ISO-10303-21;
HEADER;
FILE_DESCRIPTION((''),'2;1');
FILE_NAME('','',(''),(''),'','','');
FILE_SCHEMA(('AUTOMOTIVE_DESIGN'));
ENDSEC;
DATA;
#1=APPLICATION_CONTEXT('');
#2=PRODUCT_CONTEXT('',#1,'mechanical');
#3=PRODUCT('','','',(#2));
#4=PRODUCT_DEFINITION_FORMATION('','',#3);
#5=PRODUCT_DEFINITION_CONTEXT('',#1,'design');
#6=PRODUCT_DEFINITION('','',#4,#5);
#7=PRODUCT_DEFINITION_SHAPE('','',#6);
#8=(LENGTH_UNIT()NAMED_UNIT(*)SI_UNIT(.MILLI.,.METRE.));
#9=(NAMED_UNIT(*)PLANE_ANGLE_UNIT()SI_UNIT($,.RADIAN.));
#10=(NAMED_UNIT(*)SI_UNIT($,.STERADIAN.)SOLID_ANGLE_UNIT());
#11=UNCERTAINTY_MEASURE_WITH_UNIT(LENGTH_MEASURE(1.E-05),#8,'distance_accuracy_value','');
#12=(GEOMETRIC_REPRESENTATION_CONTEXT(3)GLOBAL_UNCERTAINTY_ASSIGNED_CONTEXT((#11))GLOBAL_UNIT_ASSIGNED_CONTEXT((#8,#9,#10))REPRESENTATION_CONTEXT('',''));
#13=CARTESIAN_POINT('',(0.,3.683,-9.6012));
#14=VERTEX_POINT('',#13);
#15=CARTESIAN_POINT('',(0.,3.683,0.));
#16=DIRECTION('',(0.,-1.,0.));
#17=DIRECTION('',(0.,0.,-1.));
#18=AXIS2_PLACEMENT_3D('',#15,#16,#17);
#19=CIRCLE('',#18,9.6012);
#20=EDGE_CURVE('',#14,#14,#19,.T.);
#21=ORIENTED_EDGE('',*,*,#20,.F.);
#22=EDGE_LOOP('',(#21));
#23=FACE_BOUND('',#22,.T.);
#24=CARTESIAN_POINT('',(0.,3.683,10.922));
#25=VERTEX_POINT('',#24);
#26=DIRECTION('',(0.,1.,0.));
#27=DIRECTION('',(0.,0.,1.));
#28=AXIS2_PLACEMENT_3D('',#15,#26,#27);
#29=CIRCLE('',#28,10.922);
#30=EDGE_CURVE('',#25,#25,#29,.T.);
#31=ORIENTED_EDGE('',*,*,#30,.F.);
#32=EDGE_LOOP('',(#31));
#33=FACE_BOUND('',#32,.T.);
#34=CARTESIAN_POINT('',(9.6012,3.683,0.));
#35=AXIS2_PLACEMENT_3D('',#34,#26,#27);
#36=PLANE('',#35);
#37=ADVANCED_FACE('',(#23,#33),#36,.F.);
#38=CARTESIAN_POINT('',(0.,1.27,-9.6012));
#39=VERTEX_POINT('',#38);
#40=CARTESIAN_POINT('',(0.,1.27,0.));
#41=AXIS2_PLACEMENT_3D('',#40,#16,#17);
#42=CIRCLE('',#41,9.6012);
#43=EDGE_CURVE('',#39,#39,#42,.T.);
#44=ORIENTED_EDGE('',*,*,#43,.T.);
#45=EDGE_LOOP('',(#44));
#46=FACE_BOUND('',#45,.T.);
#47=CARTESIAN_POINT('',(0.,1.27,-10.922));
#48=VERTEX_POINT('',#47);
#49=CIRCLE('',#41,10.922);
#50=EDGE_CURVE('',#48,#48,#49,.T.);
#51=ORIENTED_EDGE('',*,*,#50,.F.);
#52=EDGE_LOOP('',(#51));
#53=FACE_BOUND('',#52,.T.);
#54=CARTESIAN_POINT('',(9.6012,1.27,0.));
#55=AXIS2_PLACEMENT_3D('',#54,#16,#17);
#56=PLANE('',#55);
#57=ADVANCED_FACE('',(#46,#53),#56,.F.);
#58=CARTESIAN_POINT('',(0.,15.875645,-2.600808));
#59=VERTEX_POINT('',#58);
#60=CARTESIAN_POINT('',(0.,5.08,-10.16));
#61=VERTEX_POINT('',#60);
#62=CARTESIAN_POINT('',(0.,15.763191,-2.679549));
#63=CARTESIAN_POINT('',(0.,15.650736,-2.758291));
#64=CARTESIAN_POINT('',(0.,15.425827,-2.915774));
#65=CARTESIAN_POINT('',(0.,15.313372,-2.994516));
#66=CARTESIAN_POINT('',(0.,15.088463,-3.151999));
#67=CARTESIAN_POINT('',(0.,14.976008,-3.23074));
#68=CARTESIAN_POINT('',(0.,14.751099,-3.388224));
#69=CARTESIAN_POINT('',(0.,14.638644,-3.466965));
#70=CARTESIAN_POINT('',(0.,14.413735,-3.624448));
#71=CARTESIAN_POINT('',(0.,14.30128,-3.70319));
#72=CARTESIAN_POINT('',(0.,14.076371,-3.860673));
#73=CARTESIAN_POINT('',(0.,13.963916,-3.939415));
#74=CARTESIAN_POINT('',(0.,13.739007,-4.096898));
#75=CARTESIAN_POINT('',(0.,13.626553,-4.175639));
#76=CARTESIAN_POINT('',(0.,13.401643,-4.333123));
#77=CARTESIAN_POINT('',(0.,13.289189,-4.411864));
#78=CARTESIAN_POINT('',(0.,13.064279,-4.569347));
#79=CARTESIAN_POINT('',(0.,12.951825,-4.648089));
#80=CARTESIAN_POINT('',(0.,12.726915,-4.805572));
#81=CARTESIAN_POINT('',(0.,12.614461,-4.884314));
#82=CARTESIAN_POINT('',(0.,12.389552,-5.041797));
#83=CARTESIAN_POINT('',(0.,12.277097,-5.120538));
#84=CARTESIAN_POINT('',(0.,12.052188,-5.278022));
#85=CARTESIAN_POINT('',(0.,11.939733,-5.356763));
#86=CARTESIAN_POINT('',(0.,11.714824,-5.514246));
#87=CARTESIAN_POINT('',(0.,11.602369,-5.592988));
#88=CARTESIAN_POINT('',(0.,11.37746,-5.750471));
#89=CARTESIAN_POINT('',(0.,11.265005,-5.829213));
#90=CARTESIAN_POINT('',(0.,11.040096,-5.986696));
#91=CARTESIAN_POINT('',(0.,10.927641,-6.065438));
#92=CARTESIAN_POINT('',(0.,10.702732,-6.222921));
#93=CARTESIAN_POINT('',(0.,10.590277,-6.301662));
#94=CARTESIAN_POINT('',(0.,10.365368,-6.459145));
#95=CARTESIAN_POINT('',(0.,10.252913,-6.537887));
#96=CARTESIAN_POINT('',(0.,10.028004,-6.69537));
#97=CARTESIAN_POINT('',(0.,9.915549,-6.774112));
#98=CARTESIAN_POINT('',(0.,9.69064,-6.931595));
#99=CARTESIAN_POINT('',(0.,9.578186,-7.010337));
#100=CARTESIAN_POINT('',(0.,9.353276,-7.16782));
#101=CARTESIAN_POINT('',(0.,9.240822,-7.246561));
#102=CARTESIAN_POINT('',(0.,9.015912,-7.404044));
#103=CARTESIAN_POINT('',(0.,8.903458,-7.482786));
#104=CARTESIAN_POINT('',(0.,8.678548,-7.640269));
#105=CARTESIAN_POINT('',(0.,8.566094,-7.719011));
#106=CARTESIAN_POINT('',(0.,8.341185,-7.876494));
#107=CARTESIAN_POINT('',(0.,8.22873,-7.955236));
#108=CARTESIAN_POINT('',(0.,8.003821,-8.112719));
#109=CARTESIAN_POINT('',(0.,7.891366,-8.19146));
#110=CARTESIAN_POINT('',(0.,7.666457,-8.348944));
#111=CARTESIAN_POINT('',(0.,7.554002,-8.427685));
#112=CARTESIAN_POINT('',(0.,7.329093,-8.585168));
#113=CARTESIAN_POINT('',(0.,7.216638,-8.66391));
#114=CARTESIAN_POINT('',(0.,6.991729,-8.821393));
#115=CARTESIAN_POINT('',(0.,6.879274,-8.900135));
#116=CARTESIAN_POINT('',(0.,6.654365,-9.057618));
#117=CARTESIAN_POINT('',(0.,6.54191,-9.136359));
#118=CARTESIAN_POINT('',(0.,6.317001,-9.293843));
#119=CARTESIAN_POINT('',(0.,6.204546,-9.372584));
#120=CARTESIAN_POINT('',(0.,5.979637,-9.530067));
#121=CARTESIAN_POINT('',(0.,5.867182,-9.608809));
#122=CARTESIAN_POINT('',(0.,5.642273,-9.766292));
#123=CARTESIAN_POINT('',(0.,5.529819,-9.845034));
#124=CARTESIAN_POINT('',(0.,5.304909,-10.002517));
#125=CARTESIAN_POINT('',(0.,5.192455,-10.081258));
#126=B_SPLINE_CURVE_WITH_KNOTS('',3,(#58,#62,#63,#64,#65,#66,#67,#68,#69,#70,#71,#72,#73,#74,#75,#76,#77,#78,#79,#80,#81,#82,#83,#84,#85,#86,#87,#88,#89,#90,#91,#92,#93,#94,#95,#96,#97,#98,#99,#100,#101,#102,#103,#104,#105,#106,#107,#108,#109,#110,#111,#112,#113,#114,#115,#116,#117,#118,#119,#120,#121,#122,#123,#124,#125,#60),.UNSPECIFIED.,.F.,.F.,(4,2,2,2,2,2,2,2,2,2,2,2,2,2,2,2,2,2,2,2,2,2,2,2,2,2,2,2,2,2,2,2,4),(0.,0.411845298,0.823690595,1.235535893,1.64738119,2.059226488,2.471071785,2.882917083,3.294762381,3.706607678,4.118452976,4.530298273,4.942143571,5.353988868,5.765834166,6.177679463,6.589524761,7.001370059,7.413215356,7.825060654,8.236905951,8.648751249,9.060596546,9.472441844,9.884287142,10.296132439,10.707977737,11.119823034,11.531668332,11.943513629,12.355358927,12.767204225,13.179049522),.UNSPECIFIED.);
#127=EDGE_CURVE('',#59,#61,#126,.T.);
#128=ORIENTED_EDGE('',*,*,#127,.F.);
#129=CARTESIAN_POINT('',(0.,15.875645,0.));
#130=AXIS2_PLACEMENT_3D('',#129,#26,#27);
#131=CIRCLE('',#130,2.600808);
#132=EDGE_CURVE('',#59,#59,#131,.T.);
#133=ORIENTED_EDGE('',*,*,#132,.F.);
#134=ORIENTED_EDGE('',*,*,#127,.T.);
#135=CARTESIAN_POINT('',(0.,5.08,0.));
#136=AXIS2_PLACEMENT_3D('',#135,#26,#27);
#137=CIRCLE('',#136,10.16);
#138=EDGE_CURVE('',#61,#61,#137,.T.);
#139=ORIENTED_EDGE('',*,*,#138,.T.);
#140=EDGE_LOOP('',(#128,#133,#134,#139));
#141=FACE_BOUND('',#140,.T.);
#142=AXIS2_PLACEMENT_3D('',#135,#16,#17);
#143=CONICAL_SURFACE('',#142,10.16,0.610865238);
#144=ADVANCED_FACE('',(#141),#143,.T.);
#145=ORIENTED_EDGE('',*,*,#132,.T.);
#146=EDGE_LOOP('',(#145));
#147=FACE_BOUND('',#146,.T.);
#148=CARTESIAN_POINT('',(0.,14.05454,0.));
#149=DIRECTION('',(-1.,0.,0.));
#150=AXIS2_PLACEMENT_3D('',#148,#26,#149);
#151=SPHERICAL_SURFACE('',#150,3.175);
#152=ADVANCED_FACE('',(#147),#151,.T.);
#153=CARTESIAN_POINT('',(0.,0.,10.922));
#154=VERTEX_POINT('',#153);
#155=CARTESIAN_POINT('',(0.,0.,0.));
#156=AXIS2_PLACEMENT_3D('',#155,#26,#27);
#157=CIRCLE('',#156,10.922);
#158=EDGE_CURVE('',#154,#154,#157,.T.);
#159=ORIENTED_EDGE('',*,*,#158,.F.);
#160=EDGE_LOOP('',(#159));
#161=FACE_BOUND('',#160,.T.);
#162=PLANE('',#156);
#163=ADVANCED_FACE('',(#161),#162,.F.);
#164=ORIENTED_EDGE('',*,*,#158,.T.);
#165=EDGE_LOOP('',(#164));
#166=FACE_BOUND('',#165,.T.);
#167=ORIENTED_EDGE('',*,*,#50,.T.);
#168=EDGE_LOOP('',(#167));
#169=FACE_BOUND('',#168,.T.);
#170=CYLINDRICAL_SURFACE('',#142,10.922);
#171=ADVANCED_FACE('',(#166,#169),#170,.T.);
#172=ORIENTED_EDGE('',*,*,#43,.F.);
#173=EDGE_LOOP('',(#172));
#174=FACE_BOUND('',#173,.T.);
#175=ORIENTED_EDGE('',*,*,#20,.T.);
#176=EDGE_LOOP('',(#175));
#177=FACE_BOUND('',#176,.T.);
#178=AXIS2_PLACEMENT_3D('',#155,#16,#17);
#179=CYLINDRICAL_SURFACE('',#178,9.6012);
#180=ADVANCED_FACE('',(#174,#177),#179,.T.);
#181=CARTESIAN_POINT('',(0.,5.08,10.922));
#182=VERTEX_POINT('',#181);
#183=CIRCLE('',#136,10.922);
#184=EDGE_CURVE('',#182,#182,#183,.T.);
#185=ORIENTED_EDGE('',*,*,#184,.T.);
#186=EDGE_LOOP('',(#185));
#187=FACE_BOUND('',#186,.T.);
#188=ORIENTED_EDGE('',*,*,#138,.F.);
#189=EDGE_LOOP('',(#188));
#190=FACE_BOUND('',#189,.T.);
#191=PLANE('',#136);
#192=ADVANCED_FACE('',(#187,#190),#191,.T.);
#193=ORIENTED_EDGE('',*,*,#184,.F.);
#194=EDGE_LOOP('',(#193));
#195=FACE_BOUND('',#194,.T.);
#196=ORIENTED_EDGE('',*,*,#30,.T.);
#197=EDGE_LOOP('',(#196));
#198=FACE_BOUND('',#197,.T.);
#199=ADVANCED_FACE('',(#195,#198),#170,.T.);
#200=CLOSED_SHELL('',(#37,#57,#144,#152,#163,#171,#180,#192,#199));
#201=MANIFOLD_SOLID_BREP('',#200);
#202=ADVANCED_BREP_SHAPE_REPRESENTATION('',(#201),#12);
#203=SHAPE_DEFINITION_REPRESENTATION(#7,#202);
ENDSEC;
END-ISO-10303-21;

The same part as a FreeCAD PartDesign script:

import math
import FreeCAD as App
import Part
import Sketcher
Q = App.Units.Quantity

doc = App.newDocument("Part")
body = doc.addObject("PartDesign::Body", "Body")

# Sketch on XZ plane
sketch1 = doc.addObject("Sketcher::SketchObject", "Sketch")
body.addObject(sketch1)
sketch1.AttachmentSupport = (doc.XZ_Plane, [""])
sketch1.MapMode = "FlatFace"
sketch1.addGeometry(Part.Circle(App.Vector(0, 0, 0), App.Vector(0, 0, 1), 10.922), False)
sketch1.addConstraint([
    Sketcher.Constraint("Coincident", 0, 3, -1, 1),
    Sketcher.Constraint("Diameter", 0, Q("0.86 in")),
])
pad1 = doc.addObject("PartDesign::Pad", "Pad")
body.addObject(pad1)
pad1.Profile = sketch1
pad1.Length = Q("0.2 in")
pad1.Reversed = True

# Sketch on XY plane
sketch2 = doc.addObject("Sketcher::SketchObject", "Sketch001")
body.addObject(sketch2)
sketch2.AttachmentSupport = (doc.XY_Plane, [""])
sketch2.MapMode = "FlatFace"
sketch2.addGeometry([
    Part.LineSegment(App.Vector(9.6012, 3.683, 0), App.Vector(9.6012, 1.27, 0)),
    Part.LineSegment(App.Vector(9.6012, 1.27, 0), App.Vector(12.0142, 1.27, 0)),
    Part.LineSegment(App.Vector(12.0142, 1.27, 0), App.Vector(12.0142, 3.683, 0)),
    Part.LineSegment(App.Vector(12.0142, 3.683, 0), App.Vector(9.6012, 3.683, 0)),
], False)
sketch2.addConstraint([
    Sketcher.Constraint("Coincident", 0, 2, 1, 1),
    Sketcher.Constraint("Coincident", 1, 2, 2, 1),
    Sketcher.Constraint("Coincident", 2, 2, 3, 1),
    Sketcher.Constraint("Coincident", 3, 2, 0, 1),
    Sketcher.Constraint("Vertical", 0),
    Sketcher.Constraint("Horizontal", 1),
    Sketcher.Constraint("Vertical", 2),
    Sketcher.Constraint("Horizontal", 3),
    Sketcher.Constraint("Equal", 3, 0),
    Sketcher.Constraint("DistanceX", 1, 1, 1, 2, Q("0.095 in")),
    Sketcher.Constraint("DistanceY", -1, 1, 0, 2, Q("0.05 in")),
    Sketcher.Constraint("DistanceX", -1, 1, 0, 2, Q("0.378 in")),
])
groove = doc.addObject("PartDesign::Groove", "Groove")
body.addObject(groove)
groove.Profile = sketch2
groove.ReferenceAxis = (sketch2, ["V_Axis"])
groove.Angle = 360

# Sketch on XY plane
sketch3 = doc.addObject("Sketcher::SketchObject", "Sketch002")
body.addObject(sketch3)
sketch3.AttachmentSupport = (doc.XY_Plane, [""])
sketch3.MapMode = "FlatFace"
sketch3.addGeometry([
    Part.LineSegment(App.Vector(10.16, 5.08, 0), App.Vector(2.600808, 15.875645, 0)),
    Part.ArcOfCircle(Part.Circle(App.Vector(0, 14.05454, 0), App.Vector(0, 0, 1), 3.175), math.radians(35), math.radians(90)),
    Part.LineSegment(App.Vector(0, 17.22954, 0), App.Vector(0, 5.08, 0)),
    Part.LineSegment(App.Vector(0, 5.08, 0), App.Vector(10.16, 5.08, 0)),
], False)
sketch3.addConstraint([
    Sketcher.Constraint("Tangent", 0, 2, 1, 1),
    Sketcher.Constraint("Coincident", 1, 2, 2, 1),
    Sketcher.Constraint("Coincident", 2, 2, 3, 1),
    Sketcher.Constraint("Coincident", 3, 2, 0, 1),
    Sketcher.Constraint("Vertical", 2),
    Sketcher.Constraint("Horizontal", 3),
    Sketcher.Constraint("PointOnObject", 1, 3, -2),
    Sketcher.Constraint("PointOnObject", 1, 2, -2),
    Sketcher.Constraint("DistanceX", 3, 1, 3, 2, Q("0.4 in")),
    Sketcher.Constraint("Angle", 0, Q("125 deg")),
    Sketcher.Constraint("Radius", 1, Q("0.125 in")),
    Sketcher.Constraint("DistanceY", -1, 1, 2, 2, Q("0.2 in")),
])
revolution = doc.addObject("PartDesign::Revolution", "Revolution")
body.addObject(revolution)
revolution.Profile = sketch3
revolution.ReferenceAxis = (sketch3, ["V_Axis"])
revolution.Angle = 360

doc.recompute()
